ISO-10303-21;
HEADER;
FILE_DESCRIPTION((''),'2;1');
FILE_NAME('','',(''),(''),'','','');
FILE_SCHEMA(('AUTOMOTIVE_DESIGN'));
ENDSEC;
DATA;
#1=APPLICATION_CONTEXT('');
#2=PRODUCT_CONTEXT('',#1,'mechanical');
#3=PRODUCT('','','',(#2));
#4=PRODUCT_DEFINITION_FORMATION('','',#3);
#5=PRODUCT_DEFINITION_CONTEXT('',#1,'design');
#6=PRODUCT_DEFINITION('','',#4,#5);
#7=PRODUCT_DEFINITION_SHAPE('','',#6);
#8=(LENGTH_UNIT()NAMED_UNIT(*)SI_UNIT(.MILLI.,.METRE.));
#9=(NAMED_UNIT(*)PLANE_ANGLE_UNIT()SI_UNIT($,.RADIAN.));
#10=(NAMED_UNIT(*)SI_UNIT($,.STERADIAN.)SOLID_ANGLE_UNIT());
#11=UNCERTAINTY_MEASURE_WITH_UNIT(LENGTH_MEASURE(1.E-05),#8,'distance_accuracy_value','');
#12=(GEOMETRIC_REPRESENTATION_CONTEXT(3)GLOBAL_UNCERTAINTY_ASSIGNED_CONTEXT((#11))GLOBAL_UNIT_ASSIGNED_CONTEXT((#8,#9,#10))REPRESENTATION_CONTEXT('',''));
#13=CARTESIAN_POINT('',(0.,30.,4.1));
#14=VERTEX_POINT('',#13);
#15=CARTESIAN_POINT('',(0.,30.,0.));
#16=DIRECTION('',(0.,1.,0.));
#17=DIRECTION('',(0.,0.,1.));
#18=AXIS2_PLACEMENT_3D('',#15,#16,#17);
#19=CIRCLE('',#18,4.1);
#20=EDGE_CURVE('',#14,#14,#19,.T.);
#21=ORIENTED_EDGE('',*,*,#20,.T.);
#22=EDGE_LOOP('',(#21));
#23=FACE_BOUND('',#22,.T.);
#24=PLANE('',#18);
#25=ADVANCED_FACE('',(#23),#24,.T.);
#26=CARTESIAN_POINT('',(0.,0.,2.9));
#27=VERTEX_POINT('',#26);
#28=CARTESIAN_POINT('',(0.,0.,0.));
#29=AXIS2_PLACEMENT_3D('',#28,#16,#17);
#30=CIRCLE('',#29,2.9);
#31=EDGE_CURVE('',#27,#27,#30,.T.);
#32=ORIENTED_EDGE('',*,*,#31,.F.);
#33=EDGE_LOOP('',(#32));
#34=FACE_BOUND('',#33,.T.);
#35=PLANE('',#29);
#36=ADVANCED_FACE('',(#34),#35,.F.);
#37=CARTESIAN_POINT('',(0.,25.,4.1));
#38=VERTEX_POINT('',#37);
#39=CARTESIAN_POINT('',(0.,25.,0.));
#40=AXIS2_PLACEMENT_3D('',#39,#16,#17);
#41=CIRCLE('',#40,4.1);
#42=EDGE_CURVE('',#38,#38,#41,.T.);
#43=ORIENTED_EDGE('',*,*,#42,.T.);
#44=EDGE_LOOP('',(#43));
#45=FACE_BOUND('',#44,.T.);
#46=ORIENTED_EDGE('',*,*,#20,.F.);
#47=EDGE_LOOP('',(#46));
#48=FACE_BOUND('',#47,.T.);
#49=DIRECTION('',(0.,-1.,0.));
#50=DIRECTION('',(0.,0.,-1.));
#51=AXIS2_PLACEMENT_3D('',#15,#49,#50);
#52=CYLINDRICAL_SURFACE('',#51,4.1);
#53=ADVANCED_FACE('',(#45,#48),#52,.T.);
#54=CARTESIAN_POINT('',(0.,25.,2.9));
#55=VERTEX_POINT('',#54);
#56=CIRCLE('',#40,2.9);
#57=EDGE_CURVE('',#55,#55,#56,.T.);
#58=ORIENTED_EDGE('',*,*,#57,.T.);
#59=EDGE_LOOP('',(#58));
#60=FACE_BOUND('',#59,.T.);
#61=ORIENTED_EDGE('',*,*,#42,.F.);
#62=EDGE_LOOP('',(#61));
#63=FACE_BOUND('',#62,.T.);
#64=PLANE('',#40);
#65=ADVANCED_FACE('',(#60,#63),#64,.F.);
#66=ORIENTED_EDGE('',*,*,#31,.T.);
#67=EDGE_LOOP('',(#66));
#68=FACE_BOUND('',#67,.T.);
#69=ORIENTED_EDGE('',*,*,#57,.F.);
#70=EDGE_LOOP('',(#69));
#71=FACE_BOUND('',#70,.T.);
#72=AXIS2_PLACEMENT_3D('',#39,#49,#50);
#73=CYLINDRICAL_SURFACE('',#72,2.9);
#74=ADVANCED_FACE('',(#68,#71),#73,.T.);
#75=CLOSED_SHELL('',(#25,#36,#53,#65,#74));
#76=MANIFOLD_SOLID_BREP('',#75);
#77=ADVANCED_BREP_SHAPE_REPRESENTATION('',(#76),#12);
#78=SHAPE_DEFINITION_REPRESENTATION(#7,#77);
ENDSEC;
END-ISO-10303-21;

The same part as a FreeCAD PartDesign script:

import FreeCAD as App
import Part
import Sketcher
Q = App.Units.Quantity

doc = App.newDocument("Part")
body = doc.addObject("PartDesign::Body", "Body")

sketch1 = body.newObject("Sketcher::SketchObject", "Sketch")
sketch1.AttachmentSupport = (doc.getObject("XZ_Plane"), [""])
sketch1.MapMode = "FlatFace"
sketch1.addGeometry(Part.Circle(App.Vector(0, 0, 0), App.Vector(0, 0, 1), 2.9), False)
sketch1.addConstraint([
    Sketcher.Constraint("Coincident", 0, 3, -1, 1),
    Sketcher.Constraint("Diameter", 0, Q("5.8 mm")),
])
pad1 = body.newObject("PartDesign::Pad", "Pad")
pad1.Profile = sketch1
pad1.Length = 25
pad1.Reversed = True

sketch2 = body.newObject("Sketcher::SketchObject", "Sketch001")
sketch2.AttachmentSupport = (doc.getObject("XZ_Plane"), [""])
sketch2.MapMode = "FlatFace"
sketch2.AttachmentOffset = App.Placement(App.Vector(0, 0, -25), App.Rotation())
sketch2.addGeometry(Part.Circle(App.Vector(0, 0, 0), App.Vector(0, 0, 1), 4.1), False)
sketch2.addConstraint([
    Sketcher.Constraint("Coincident", 0, 3, -1, 1),
    Sketcher.Constraint("Diameter", 0, Q("8.2 mm")),
])
pad2 = body.newObject("PartDesign::Pad", "Pad001")
pad2.Profile = sketch2
pad2.Length = 5
pad2.Reversed = True

doc.recompute()
